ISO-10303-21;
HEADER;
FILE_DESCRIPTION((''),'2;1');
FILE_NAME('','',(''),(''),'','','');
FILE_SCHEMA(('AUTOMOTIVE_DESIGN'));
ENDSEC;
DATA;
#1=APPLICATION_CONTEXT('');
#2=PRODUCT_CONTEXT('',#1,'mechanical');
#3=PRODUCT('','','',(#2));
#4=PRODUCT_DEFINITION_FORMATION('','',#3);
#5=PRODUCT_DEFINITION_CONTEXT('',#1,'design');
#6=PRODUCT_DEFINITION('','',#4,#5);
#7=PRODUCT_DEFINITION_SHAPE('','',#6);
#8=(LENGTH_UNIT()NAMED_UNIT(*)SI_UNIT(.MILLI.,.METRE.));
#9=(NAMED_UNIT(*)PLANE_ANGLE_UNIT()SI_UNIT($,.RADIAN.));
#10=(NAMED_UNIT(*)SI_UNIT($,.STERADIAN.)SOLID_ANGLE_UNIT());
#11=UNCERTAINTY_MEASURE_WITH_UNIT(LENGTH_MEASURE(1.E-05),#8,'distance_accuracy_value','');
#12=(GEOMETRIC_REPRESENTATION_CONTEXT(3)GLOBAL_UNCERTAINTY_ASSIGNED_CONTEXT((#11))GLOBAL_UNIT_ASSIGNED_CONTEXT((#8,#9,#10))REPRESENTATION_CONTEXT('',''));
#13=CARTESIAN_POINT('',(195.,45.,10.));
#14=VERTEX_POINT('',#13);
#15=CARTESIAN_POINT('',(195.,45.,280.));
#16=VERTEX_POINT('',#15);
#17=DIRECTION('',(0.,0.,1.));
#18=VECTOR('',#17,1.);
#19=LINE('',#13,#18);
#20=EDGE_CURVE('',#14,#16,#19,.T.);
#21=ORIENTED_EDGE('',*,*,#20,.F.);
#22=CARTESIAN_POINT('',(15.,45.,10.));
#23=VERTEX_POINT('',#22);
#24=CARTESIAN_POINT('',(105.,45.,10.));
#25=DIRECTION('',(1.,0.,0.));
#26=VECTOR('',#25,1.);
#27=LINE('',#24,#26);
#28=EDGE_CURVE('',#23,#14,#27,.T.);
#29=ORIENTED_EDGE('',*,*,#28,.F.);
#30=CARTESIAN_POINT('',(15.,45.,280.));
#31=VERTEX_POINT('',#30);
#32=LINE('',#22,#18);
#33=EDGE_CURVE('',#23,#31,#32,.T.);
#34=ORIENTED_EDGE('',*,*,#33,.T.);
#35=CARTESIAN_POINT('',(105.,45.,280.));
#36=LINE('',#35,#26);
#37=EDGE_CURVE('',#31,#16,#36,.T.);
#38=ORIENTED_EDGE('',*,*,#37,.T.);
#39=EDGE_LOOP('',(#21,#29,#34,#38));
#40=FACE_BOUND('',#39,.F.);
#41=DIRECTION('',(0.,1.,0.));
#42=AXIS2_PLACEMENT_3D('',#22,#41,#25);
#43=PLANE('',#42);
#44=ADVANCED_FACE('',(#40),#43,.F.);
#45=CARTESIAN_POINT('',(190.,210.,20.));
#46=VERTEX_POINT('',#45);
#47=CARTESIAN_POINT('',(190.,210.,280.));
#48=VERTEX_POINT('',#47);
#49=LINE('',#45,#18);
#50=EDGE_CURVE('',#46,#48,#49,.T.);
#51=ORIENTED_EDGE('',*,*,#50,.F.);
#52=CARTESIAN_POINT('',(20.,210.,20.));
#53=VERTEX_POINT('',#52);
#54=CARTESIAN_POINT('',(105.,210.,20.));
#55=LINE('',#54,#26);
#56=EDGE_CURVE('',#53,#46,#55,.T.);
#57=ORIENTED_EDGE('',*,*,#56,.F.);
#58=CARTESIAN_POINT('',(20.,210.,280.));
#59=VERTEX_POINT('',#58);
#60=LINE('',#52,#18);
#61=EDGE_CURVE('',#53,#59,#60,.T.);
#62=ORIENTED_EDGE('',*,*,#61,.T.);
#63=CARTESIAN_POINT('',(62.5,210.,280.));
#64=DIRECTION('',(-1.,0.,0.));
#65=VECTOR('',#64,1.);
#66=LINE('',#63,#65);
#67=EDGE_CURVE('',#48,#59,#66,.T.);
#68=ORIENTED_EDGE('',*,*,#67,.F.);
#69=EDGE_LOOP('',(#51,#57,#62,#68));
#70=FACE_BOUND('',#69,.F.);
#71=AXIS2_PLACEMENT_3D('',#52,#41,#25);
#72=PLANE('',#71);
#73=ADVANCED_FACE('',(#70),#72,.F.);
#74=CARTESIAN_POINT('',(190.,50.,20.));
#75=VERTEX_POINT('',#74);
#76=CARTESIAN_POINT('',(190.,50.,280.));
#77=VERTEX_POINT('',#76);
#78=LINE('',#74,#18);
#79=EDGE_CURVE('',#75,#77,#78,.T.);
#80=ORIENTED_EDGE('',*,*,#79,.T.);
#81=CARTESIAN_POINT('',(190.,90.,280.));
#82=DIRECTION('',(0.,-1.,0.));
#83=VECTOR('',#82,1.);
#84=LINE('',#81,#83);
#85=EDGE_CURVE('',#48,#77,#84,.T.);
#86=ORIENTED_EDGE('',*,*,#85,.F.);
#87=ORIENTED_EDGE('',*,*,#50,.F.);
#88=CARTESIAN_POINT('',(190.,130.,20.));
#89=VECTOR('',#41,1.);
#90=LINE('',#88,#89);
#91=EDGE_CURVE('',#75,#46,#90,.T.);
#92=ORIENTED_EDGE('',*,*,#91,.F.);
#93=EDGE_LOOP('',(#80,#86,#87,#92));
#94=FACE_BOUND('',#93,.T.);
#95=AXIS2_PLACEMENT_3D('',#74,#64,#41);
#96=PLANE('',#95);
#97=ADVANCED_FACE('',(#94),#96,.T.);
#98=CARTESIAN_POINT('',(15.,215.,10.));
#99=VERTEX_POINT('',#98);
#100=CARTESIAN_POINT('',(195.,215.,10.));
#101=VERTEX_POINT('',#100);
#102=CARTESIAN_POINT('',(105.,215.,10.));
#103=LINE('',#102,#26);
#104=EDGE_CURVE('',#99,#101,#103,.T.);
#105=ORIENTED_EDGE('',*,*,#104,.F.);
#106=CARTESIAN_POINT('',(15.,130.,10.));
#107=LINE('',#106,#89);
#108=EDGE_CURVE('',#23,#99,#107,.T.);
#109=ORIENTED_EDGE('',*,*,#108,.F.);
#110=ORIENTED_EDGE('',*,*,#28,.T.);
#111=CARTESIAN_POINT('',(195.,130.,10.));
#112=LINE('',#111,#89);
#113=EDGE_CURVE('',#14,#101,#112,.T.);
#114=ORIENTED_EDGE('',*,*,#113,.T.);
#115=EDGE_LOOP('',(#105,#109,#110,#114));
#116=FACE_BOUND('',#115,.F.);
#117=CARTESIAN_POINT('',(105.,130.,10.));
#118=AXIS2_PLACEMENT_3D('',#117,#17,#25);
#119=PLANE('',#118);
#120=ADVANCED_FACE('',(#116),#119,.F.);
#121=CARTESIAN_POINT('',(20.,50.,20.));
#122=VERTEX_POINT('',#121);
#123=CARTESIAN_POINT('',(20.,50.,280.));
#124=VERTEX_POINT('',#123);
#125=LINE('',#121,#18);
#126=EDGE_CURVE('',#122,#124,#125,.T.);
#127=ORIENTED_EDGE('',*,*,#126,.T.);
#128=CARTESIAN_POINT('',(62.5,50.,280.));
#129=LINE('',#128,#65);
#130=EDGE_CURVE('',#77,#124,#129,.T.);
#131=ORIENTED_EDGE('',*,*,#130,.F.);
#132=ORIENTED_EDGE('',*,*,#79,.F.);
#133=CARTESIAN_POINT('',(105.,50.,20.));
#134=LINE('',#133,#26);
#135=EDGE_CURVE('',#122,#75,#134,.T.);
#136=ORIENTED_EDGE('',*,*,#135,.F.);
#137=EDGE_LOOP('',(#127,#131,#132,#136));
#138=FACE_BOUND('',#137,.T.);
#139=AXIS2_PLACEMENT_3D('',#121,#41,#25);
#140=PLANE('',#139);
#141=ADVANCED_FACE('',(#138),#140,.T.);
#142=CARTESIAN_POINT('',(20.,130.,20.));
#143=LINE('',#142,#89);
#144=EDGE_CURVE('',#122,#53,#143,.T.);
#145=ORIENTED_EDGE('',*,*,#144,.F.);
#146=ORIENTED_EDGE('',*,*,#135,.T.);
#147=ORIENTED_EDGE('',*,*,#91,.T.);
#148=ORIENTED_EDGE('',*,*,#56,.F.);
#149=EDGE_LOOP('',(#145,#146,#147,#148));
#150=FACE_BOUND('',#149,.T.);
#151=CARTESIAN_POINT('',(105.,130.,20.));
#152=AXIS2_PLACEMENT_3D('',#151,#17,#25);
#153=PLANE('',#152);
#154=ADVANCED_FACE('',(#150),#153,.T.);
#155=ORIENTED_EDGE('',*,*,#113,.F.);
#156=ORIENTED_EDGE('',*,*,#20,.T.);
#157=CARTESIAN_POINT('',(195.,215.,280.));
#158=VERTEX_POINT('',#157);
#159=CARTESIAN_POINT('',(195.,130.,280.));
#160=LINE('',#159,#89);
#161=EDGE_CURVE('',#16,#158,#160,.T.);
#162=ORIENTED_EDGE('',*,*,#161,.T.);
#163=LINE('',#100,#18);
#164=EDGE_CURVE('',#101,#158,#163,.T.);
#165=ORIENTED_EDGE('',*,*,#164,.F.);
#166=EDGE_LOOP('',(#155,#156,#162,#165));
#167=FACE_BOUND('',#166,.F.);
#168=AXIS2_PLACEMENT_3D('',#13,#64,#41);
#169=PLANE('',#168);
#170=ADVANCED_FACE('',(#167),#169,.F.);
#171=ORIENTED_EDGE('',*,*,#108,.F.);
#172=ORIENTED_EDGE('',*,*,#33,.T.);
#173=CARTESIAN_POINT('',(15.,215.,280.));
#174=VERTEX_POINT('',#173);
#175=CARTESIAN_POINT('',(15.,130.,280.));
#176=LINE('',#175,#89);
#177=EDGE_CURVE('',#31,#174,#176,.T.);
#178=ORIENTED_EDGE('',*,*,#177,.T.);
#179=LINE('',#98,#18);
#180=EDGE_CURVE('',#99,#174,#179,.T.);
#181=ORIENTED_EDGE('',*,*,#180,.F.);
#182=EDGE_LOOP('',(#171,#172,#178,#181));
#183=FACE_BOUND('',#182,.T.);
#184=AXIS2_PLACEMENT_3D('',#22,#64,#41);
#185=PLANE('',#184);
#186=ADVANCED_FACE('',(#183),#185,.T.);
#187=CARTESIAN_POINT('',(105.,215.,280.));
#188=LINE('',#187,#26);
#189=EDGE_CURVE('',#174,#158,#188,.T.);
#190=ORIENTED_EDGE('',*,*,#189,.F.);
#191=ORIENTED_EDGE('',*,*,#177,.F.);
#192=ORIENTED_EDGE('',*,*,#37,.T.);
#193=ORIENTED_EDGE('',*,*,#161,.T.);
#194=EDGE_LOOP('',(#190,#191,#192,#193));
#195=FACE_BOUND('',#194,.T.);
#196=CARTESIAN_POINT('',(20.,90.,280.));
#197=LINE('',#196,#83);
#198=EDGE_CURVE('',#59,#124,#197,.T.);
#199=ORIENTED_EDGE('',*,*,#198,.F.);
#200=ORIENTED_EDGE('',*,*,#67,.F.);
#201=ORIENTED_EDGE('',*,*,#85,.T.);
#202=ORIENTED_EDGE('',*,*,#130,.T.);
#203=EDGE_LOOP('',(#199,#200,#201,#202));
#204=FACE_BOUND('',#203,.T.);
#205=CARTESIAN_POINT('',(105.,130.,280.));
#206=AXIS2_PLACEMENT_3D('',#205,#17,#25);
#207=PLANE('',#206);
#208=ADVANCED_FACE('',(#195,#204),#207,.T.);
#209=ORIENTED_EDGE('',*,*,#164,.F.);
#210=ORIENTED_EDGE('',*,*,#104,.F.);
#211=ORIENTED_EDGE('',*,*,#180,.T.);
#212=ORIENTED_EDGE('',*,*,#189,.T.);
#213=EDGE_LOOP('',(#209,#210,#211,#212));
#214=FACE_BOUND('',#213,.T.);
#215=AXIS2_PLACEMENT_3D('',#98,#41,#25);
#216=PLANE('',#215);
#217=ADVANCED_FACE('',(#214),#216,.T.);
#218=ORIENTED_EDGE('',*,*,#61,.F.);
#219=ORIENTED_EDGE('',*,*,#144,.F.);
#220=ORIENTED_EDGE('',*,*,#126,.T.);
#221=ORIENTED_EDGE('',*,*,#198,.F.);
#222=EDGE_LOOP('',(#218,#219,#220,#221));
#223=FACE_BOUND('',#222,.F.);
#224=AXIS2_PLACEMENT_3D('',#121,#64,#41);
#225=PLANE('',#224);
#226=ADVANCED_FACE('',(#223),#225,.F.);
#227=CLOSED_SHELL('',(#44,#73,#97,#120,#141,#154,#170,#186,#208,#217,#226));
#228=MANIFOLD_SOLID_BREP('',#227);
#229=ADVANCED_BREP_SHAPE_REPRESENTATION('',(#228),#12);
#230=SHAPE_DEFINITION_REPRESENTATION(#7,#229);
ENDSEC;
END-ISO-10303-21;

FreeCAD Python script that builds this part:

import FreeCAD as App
import Part
import Sketcher

V = App.Vector

doc = App.newDocument("Part")
body = doc.addObject("PartDesign::Body", "Body")

# Sketch on XY plane
sketch1 = body.newObject("Sketcher::SketchObject", "Sketch")
sketch1.AttachmentSupport = (doc.getObject("XY_Plane"), [""])
sketch1.MapMode = "FlatFace"
sketch1.AttachmentOffset = App.Placement(V(0, 0, 20), App.Rotation())
sketch1.addGeometry([
    Part.LineSegment(V(20, 210, 0), V(20, 50, 0)),
    Part.LineSegment(V(20, 50, 0), V(190, 50, 0)),
    Part.LineSegment(V(190, 50, 0), V(190, 210, 0)),
    Part.LineSegment(V(190, 210, 0), V(20, 210, 0)),
], False)
sketch1.addConstraint([
    Sketcher.Constraint("Coincident", 0, 2, 1, 1),
    Sketcher.Constraint("Coincident", 1, 2, 2, 1),
    Sketcher.Constraint("Coincident", 2, 2, 3, 1),
    Sketcher.Constraint("Coincident", 3, 2, 0, 1),
    Sketcher.Constraint("Vertical", 0),
    Sketcher.Constraint("Horizontal", 1),
    Sketcher.Constraint("Vertical", 2),
    Sketcher.Constraint("Horizontal", 3),
    Sketcher.Constraint("DistanceX", 1, 1, 1, 2, 170.0),
    Sketcher.Constraint("DistanceY", 0, 2, 0, 1, 160.0),
    Sketcher.Constraint("DistanceX", -1, 1, 0, 2, 20.0),
    Sketcher.Constraint("DistanceY", -1, 1, 0, 2, 50.0),
])
pad1 = body.newObject("PartDesign::Pad", "Pad")
pad1.Profile = sketch1
pad1.Length = 290
body2 = doc.addObject("PartDesign::Body", "Body001")

# Sketch on XY plane
sketch2 = body2.newObject("Sketcher::SketchObject", "Sketch001")
sketch2.AttachmentSupport = (doc.getObject("XY_Plane001"), [""])
sketch2.MapMode = "FlatFace"
sketch2.AttachmentOffset = App.Placement(V(0, 0, 10), App.Rotation())
sketch2.addGeometry([
    Part.LineSegment(V(15, 215, 0), V(15, 45, 0)),
    Part.LineSegment(V(15, 45, 0), V(195, 45, 0)),
    Part.LineSegment(V(195, 45, 0), V(195, 215, 0)),
    Part.LineSegment(V(195, 215, 0), V(15, 215, 0)),
], False)
sketch2.addConstraint([
    Sketcher.Constraint("Coincident", 0, 2, 1, 1),
    Sketcher.Constraint("Coincident", 1, 2, 2, 1),
    Sketcher.Constraint("Coincident", 2, 2, 3, 1),
    Sketcher.Constraint("Coincident", 3, 2, 0, 1),
    Sketcher.Constraint("Vertical", 0),
    Sketcher.Constraint("Horizontal", 1),
    Sketcher.Constraint("Vertical", 2),
    Sketcher.Constraint("Horizontal", 3),
    Sketcher.Constraint("DistanceX", 1, 1, 1, 2, 180.0),
    Sketcher.Constraint("DistanceY", 0, 2, 0, 1, 170.0),
    Sketcher.Constraint("DistanceX", -1, 1, 0, 2, 15.0),
    Sketcher.Constraint("DistanceY", -1, 1, 0, 2, 45.0),
])
pad2 = body2.newObject("PartDesign::Pad", "Pad001")
pad2.Profile = sketch2
pad2.Length = 270
doc.recompute()

boolean = body2.newObject("PartDesign::Boolean", "Boolean")
boolean.Type = "Cut"
boolean.addObjects([body])

doc.recompute()
